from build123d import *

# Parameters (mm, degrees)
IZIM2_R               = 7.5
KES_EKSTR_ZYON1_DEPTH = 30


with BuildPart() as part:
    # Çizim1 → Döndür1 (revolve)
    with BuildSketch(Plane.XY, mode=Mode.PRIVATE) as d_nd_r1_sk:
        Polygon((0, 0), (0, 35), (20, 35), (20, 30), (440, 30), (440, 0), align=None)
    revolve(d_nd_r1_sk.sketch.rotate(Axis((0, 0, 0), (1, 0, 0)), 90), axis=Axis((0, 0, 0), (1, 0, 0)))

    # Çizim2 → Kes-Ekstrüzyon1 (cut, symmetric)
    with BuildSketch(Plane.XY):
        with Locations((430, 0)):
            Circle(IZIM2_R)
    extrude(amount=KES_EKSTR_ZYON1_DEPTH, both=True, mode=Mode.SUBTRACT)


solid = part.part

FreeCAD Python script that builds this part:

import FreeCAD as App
import Part
import Sketcher
Q = App.Units.Quantity


def add_polygon(sketch, points):
    """Adds a closed chain of lines whose ends are joined by coincident constraints."""
    first, n = sketch.GeometryCount, len(points)
    for a, b in zip(points, points[1:] + points[:1]):
        sketch.addGeometry(Part.LineSegment(App.Vector(*a, 0), App.Vector(*b, 0)), False)
    for i in range(n):
        sketch.addConstraint(Sketcher.Constraint("Coincident", first + i, 2, first + (i + 1) % n, 1))

doc = App.newDocument("Part")
body = doc.addObject("PartDesign::Body", "Body")

sketch1 = doc.addObject("Sketcher::SketchObject", "Sketch")
body.addObject(sketch1)
sketch1.AttachmentSupport = (doc.XY_Plane, [""])
sketch1.MapMode = "FlatFace"
add_polygon(sketch1, [(0, 35), (0, 0), (440, 0), (440, 30), (20, 30), (20, 35)])
sketch1.addConstraint([
    Sketcher.Constraint("Vertical", 0),
    Sketcher.Constraint("Horizontal", 1),
    Sketcher.Constraint("Vertical", 2),
    Sketcher.Constraint("Horizontal", 3),
    Sketcher.Constraint("Vertical", 4),
    Sketcher.Constraint("Horizontal", 5),
    Sketcher.Constraint("Coincident", 0, 2, -1, 1),
    Sketcher.Constraint("DistanceX", 1, 1, 1, 2, Q("440 mm")),
    Sketcher.Constraint("DistanceX", 3, 2, 3, 1, Q("420 mm")),
    Sketcher.Constraint("DistanceY", 0, 2, 0, 1, Q("35 mm")),
    Sketcher.Constraint("DistanceY", 2, 1, 2, 2, Q("30 mm")),
])
revolution = doc.addObject("PartDesign::Revolution", "Revolution")
body.addObject(revolution)
revolution.Profile = sketch1
revolution.ReferenceAxis = (sketch1, ["H_Axis"])
revolution.Angle = 360

sketch2 = doc.addObject("Sketcher::SketchObject", "Sketch001")
body.addObject(sketch2)
sketch2.AttachmentSupport = (doc.XY_Plane, [""])
sketch2.MapMode = "FlatFace"
sketch2.addGeometry(Part.Circle(App.Vector(430, 0, 0), App.Vector(0, 0, 1), 7.5), False)
sketch2.addConstraint([
    Sketcher.Constraint("PointOnObject", 0, 3, -1),
    Sketcher.Constraint("Diameter", 0, Q("15 mm")),
    Sketcher.Constraint("DistanceX", -1, 1, 0, 3, Q("430 mm")),
])
pocket1 = doc.addObject("PartDesign::Pocket", "Pocket")
body.addObject(pocket1)
pocket1.Profile = sketch2
pocket1.Length = 60
pocket1.Midplane = True

doc.recompute()
